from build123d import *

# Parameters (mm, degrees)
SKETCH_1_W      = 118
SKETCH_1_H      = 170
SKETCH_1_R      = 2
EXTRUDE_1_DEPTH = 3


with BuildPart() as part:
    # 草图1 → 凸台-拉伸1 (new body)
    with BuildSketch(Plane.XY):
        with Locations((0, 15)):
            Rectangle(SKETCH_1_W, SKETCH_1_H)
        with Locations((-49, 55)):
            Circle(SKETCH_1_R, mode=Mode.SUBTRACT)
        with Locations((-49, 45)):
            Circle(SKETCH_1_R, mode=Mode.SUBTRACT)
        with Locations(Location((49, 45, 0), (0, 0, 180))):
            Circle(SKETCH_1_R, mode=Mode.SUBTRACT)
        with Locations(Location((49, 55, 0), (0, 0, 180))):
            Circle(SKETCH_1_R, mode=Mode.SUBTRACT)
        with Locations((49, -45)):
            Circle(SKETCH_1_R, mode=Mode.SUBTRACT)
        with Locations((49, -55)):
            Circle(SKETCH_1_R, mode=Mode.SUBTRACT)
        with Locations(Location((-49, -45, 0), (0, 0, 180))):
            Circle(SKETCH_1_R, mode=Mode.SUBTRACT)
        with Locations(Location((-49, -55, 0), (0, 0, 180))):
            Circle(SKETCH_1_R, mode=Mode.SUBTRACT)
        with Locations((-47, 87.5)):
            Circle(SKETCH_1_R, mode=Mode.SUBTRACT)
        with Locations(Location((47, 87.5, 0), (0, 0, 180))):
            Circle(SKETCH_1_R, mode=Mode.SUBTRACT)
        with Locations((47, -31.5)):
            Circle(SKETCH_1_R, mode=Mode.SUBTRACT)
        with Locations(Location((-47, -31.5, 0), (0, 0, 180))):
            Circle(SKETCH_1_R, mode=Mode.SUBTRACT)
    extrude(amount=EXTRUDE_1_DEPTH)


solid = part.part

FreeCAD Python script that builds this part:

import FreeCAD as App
import Part
import Sketcher
Q = App.Units.Quantity


def add_polygon(sketch, points):
    """Adds a closed chain of lines whose ends are joined by coincident constraints."""
    first, n = sketch.GeometryCount, len(points)
    for a, b in zip(points, points[1:] + points[:1]):
        sketch.addGeometry(Part.LineSegment(App.Vector(*a, 0), App.Vector(*b, 0)), False)
    for i in range(n):
        sketch.addConstraint(Sketcher.Constraint("Coincident", first + i, 2, first + (i + 1) % n, 1))

doc = App.newDocument("Part")
body = doc.addObject("PartDesign::Body", "Body")

sketch1 = doc.addObject("Sketcher::SketchObject", "Sketch")
body.addObject(sketch1)
sketch1.AttachmentSupport = (doc.XY_Plane, [""])
sketch1.MapMode = "FlatFace"
add_polygon(sketch1, [(-59, 100), (-59, -70), (59, -70), (59, 100)])
sketch1.addGeometry(Part.Circle(App.Vector(-49, -55, 0), App.Vector(0, 0, 1), 2), False)
sketch1.addGeometry(Part.Circle(App.Vector(-49, -45, 0), App.Vector(0, 0, 1), 2), False)
sketch1.addGeometry(Part.Circle(App.Vector(-47, -31.5, 0), App.Vector(0, 0, 1), 2), False)
sketch1.addGeometry(Part.Circle(App.Vector(49, -55, 0), App.Vector(0, 0, 1), 2), False)
sketch1.addGeometry(Part.Circle(App.Vector(49, -45, 0), App.Vector(0, 0, 1), 2), False)
sketch1.addGeometry(Part.Circle(App.Vector(47, -31.5, 0), App.Vector(0, 0, 1), 2), False)
sketch1.addGeometry(Part.Circle(App.Vector(-49, 45, 0), App.Vector(0, 0, 1), 2), False)
sketch1.addGeometry(Part.Circle(App.Vector(-49, 55, 0), App.Vector(0, 0, 1), 2), False)
sketch1.addGeometry(Part.Circle(App.Vector(-47, 87.5, 0), App.Vector(0, 0, 1), 2), False)
sketch1.addGeometry(Part.Circle(App.Vector(49, 45, 0), App.Vector(0, 0, 1), 2), False)
sketch1.addGeometry(Part.Circle(App.Vector(49, 55, 0), App.Vector(0, 0, 1), 2), False)
sketch1.addGeometry(Part.Circle(App.Vector(47, 87.5, 0), App.Vector(0, 0, 1), 2), False)
sketch1.addConstraint(Sketcher.Constraint("Vertical", 0))
sketch1.addConstraint(Sketcher.Constraint("Horizontal", 1))
sketch1.addConstraint(Sketcher.Constraint("Vertical", 2))
sketch1.addConstraint(Sketcher.Constraint("Horizontal", 3))
sketch1.addConstraint(Sketcher.Constraint("Equal", 4, 5))
sketch1.addConstraint(Sketcher.Constraint("Equal", 5, 6))
sketch1.addConstraint(Sketcher.Constraint("Equal", 6, 7))
sketch1.addConstraint(Sketcher.Constraint("Equal", 7, 8))
sketch1.addConstraint(Sketcher.Constraint("Equal", 8, 9))
sketch1.addConstraint(Sketcher.Constraint("Equal", 9, 10))
sketch1.addConstraint(Sketcher.Constraint("Equal", 10, 11))
sketch1.addConstraint(Sketcher.Constraint("Equal", 11, 12))
sketch1.addConstraint(Sketcher.Constraint("Equal", 12, 13))
sketch1.addConstraint(Sketcher.Constraint("Equal", 13, 14))
sketch1.addConstraint(Sketcher.Constraint("Equal", 14, 15))
sketch1.addConstraint(Sketcher.Constraint("Symmetric", 8, 3, 10, 3, -1, 1))
sketch1.addConstraint(Sketcher.Constraint("Symmetric", 7, 3, 11, 3, -1, 1))
sketch1.addConstraint(Sketcher.Constraint("Symmetric", 5, 3, 13, 3, -1, 1))
sketch1.addConstraint(Sketcher.Constraint("Symmetric", 4, 3, 14, 3, -1, 1))
sketch1.addConstraint(Sketcher.Constraint("Symmetric", 4, 3, 7, 3, -2))
sketch1.addConstraint(Sketcher.Constraint("Symmetric", 5, 3, 8, 3, -2))
sketch1.addConstraint(Sketcher.Constraint("Symmetric", 6, 3, 9, 3, -2))
sketch1.addConstraint(Sketcher.Constraint("Symmetric", 12, 3, 15, 3, -2))
sketch1.addConstraint(Sketcher.Constraint("Vertical", 4, 3, 5, 3))
sketch1.addConstraint(Sketcher.Constraint("Vertical", 6, 3, 12, 3))
sketch1.addConstraint(Sketcher.Constraint("Diameter", 4, Q("4 mm")))
sketch1.addConstraint(Sketcher.Constraint("DistanceX", 1, 1, 1, 2, Q("118 mm")))
sketch1.addConstraint(Sketcher.Constraint("DistanceY", 0, 2, 0, 1, Q("170 mm")))
sketch1.addConstraint(Sketcher.Constraint("DistanceX", 4, 3, -1, 1, Q("49 mm")))
sketch1.addConstraint(Sketcher.Constraint("DistanceY", 4, 3, -1, 1, Q("55 mm")))
sketch1.addConstraint(Sketcher.Constraint("DistanceY", 5, 3, -1, 1, Q("45 mm")))
sketch1.addConstraint(Sketcher.Constraint("DistanceX", 6, 3, -1, 1, Q("47 mm")))
sketch1.addConstraint(Sketcher.Constraint("DistanceX", 0, 2, -1, 1, Q("59 mm")))
sketch1.addConstraint(Sketcher.Constraint("DistanceY", 0, 2, -1, 1, Q("70 mm")))
sketch1.addConstraint(Sketcher.Constraint("DistanceY", 6, 3, 12, 3, Q("119 mm")))
sketch1.addConstraint(Sketcher.Constraint("DistanceY", 6, 3, -1, 1, Q("31.5 mm")))
pad1 = doc.addObject("PartDesign::Pad", "Pad")
body.addObject(pad1)
pad1.Profile = sketch1
pad1.Length = 3

doc.recompute()
